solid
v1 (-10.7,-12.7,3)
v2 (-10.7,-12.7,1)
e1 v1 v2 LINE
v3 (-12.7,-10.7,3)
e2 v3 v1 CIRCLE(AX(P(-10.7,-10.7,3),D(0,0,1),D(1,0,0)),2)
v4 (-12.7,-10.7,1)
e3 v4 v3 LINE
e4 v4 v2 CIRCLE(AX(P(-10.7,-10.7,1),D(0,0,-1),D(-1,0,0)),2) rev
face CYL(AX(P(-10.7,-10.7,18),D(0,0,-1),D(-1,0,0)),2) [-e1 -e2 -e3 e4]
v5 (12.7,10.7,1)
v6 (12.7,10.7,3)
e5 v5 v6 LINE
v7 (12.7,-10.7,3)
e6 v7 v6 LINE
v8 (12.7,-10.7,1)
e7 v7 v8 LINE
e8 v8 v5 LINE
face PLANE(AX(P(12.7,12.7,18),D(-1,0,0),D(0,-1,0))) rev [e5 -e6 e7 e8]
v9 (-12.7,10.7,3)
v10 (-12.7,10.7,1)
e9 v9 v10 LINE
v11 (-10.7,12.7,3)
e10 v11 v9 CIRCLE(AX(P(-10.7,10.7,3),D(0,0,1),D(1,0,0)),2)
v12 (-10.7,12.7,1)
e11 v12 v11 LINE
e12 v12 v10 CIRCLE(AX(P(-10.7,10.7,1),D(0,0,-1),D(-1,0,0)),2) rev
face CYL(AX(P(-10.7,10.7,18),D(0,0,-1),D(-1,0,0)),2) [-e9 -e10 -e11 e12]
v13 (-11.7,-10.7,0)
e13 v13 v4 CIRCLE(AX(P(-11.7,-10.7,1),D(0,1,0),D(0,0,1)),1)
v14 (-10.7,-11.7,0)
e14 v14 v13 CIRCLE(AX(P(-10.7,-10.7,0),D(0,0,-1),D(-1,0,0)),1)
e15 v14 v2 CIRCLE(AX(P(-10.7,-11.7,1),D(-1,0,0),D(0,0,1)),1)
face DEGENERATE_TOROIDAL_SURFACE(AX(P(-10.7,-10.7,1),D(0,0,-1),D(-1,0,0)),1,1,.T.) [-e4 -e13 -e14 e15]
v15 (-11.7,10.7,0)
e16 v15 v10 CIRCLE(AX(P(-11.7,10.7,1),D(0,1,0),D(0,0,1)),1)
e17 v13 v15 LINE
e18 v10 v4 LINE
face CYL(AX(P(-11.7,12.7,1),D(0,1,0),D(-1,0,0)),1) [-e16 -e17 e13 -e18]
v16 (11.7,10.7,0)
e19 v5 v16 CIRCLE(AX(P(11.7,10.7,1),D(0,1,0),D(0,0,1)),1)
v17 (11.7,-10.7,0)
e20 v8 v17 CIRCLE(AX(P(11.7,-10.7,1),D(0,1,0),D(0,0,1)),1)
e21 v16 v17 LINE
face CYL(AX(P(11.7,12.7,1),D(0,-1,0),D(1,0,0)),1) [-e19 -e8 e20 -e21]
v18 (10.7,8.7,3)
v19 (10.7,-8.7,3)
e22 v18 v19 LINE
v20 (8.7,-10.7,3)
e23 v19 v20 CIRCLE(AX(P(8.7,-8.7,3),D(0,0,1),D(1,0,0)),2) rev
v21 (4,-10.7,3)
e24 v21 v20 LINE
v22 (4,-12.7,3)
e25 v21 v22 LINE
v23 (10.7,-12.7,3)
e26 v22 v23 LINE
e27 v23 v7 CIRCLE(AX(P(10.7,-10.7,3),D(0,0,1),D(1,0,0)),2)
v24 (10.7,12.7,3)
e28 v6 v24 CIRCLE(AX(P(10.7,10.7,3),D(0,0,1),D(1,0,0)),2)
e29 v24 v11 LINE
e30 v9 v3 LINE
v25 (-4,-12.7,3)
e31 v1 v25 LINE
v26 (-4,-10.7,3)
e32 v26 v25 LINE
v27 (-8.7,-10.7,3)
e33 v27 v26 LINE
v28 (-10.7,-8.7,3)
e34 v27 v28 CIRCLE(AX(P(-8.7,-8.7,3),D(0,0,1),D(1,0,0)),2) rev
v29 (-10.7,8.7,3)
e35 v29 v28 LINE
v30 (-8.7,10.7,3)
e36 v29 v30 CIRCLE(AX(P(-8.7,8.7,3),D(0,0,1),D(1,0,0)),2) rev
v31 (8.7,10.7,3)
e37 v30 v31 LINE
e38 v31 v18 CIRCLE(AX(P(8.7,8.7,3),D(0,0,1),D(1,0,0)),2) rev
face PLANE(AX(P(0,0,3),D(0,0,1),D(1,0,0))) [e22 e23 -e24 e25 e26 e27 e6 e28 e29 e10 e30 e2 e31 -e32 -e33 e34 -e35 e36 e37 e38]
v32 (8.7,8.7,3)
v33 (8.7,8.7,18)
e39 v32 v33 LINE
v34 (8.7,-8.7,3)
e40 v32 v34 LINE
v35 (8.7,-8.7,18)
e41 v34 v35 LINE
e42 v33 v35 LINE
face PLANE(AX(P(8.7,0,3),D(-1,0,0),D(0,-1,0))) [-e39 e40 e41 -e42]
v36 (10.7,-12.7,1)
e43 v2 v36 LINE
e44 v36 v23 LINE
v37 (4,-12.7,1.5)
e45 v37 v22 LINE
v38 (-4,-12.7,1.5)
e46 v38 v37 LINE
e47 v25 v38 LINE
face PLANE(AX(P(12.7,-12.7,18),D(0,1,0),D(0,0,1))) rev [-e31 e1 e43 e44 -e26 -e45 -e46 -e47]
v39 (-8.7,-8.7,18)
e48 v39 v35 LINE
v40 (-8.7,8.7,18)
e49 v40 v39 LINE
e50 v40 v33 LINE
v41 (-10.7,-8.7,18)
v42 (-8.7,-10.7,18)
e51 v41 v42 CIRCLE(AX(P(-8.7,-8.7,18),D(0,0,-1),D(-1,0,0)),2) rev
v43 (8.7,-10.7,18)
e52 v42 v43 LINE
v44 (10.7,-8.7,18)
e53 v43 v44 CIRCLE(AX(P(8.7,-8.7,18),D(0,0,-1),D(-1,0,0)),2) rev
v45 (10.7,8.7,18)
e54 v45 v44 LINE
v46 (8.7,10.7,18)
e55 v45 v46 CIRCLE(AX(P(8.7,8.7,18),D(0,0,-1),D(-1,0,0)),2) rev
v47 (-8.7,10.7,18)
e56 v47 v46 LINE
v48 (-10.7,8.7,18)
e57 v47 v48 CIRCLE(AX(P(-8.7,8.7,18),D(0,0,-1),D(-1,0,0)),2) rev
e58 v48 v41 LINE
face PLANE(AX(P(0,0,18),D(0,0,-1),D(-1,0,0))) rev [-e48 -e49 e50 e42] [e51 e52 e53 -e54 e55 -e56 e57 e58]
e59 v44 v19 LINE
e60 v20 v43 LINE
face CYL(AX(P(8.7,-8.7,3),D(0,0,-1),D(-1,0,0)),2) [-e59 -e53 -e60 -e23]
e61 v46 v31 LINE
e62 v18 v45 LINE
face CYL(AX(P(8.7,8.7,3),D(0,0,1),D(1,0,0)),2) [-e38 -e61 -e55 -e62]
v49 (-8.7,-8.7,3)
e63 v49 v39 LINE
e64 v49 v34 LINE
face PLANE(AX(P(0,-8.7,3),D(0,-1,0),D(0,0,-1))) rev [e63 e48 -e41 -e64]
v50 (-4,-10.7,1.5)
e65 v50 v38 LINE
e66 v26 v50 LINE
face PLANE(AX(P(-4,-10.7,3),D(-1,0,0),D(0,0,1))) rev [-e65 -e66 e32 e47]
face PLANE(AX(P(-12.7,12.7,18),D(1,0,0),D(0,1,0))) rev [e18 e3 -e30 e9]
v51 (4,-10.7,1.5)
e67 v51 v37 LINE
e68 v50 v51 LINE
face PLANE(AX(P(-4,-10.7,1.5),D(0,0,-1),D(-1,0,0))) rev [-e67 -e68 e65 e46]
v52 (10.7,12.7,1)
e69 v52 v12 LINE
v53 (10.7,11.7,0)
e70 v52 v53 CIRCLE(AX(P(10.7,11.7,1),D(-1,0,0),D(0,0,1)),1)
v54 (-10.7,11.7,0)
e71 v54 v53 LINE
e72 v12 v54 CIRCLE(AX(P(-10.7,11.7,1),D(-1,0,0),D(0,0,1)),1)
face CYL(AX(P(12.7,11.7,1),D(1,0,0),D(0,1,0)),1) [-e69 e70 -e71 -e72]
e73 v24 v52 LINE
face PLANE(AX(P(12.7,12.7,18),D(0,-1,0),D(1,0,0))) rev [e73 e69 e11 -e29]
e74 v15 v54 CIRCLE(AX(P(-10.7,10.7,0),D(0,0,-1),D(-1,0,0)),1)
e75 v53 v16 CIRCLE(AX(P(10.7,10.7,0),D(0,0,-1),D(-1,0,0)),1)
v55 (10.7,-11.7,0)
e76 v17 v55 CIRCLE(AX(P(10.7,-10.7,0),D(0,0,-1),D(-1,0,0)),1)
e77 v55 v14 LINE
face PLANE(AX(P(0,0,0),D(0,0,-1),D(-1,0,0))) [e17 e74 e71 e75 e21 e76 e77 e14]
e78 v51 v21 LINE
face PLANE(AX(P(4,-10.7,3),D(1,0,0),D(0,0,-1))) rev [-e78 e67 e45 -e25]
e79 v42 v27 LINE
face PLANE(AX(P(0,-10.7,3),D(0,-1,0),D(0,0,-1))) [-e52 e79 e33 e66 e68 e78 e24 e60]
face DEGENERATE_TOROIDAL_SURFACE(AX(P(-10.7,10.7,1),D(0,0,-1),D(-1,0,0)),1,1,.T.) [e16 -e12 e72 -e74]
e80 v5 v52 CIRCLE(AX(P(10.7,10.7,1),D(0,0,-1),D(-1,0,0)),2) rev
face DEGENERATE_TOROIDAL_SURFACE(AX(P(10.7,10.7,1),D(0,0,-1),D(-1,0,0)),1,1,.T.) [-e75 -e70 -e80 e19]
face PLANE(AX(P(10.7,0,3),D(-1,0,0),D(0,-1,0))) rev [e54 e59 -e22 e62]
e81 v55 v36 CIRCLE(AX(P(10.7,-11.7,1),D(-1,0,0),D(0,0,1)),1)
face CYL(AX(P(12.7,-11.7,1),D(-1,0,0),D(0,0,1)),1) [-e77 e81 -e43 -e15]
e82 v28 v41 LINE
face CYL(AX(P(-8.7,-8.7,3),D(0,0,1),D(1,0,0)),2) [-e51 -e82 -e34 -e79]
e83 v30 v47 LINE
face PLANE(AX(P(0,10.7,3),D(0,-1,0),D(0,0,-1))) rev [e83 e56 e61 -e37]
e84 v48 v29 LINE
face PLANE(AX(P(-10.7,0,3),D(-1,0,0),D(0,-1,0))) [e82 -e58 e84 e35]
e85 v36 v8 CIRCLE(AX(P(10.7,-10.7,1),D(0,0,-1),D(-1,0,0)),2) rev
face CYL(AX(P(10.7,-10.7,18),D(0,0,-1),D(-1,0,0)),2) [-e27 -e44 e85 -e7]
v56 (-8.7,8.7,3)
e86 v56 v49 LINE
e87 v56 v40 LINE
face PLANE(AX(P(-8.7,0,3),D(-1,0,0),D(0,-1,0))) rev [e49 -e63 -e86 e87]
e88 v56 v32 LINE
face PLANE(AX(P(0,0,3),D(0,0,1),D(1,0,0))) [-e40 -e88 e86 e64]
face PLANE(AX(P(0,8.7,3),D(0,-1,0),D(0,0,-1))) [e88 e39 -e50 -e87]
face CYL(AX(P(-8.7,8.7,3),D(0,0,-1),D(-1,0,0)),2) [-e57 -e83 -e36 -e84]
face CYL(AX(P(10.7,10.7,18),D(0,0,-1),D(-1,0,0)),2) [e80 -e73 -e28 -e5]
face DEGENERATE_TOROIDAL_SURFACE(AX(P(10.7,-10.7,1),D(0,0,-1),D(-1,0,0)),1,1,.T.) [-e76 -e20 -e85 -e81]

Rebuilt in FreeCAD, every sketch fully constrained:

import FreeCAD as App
import Part
import Sketcher

V = App.Vector


def edges_at(feature, points):
    """Names of the edges that pass closest to the given points."""
    edges = feature.Shape.Edges
    near = lambda p: min(range(len(edges)), key=lambda i: edges[i].distToShape(Part.Vertex(*p))[0])
    return sorted({f"Edge{near(p) + 1}" for p in points})


def add_polygon(sketch, points):
    """Adds a closed chain of lines whose ends are joined by coincident constraints."""
    first, n = sketch.GeometryCount, len(points)
    for a, b in zip(points, points[1:] + points[:1]):
        sketch.addGeometry(Part.LineSegment(App.Vector(*a, 0), App.Vector(*b, 0)), False)
    for i in range(n):
        sketch.addConstraint(Sketcher.Constraint("Coincident", first + i, 2, first + (i + 1) % n, 1))

doc = App.newDocument("Part")
body = doc.addObject("PartDesign::Body", "Body")

sketch1 = body.newObject("Sketcher::SketchObject", "Sketch")
sketch1.AttachmentSupport = (doc.getObject("XY_Plane"), [""])
sketch1.MapMode = "FlatFace"
add_polygon(sketch1, [(-13, 13), (-13, -13), (13, -13), (13, 13)])
sketch1.addConstraint([
    Sketcher.Constraint("Vertical", 0),
    Sketcher.Constraint("Horizontal", 1),
    Sketcher.Constraint("Vertical", 2),
    Sketcher.Constraint("Horizontal", 3),
    Sketcher.Constraint("Symmetric", 0, 2, 2, 2, -1, 1),
    Sketcher.Constraint("Equal", 3, 0),
    Sketcher.Constraint("DistanceX", 1, 1, 1, 2, 25.4),
])
pad1 = body.newObject("PartDesign::Pad", "Pad")
pad1.Profile = sketch1
pad1.Length = 18

sketch2 = body.newObject("Sketcher::SketchObject", "Sketch001")
sketch2.AttachmentSupport = (doc.getObject("XY_Plane"), [""])
sketch2.MapMode = "FlatFace"
sketch2.AttachmentOffset = App.Placement(V(0, 0, 18), App.Rotation())
add_polygon(sketch2, [(-13, 13), (-13, -13), (13, -13), (13, 13)])
add_polygon(sketch2, [(11, -11), (-11, -11), (-11, 11), (11, 11)])
add_polygon(sketch2, [(-9, 9), (-9, -9), (9, -9), (9, 9)])
sketch2.addConstraint([
    Sketcher.Constraint("Vertical", 0),
    Sketcher.Constraint("Horizontal", 1),
    Sketcher.Constraint("Vertical", 2),
    Sketcher.Constraint("Horizontal", 3),
    Sketcher.Constraint("Horizontal", 4),
    Sketcher.Constraint("Vertical", 5),
    Sketcher.Constraint("Horizontal", 6),
    Sketcher.Constraint("Vertical", 7),
    Sketcher.Constraint("Vertical", 8),
    Sketcher.Constraint("Horizontal", 9),
    Sketcher.Constraint("Vertical", 10),
    Sketcher.Constraint("Horizontal", 11),
    Sketcher.Constraint("Symmetric", 0, 2, 2, 2, -1, 1),
    Sketcher.Constraint("Symmetric", 4, 2, 6, 2, -1, 1),
    Sketcher.Constraint("Symmetric", 8, 2, 10, 2, -1, 1),
    Sketcher.Constraint("Equal", 3, 0),
    Sketcher.Constraint("Equal", 6, 5),
    Sketcher.Constraint("Equal", 11, 8),
    Sketcher.Constraint("DistanceX", 1, 1, 1, 2, 25.4),
    Sketcher.Constraint("DistanceX", 4, 2, 4, 1, 21.4),
    Sketcher.Constraint("DistanceX", 9, 1, 9, 2, 17.4),
])
pocket1 = body.newObject("PartDesign::Pocket", "Pocket")
pocket1.Profile = sketch2
pocket1.Length = 15
doc.recompute()

fillet = body.newObject("PartDesign::Fillet", "Fillet")
fillet.Base = (pocket1, edges_at(pocket1, [
    (-12.7, 12.7, 1.5),
    (12.7, 12.7, 1.5),
    (12.7, -12.7, 1.5),
    (-12.7, -12.7, 1.5),
    (10.7, 10.7, 10.5),
    (-10.7, 10.7, 10.5),
    (-10.7, -10.7, 10.5),
    (10.7, -10.7, 10.5),
]))
fillet.Radius = 2
doc.recompute()

fillet2 = body.newObject("PartDesign::Fillet", "Fillet001")
fillet2.Base = (fillet, edges_at(fillet, [
    (0, 12.7, 0),
    (-12.7, 0, 0),
    (12.7, 0, 0),
    (0, -12.7, 0),
    (12.114, -12.114, 0),
    (-12.114, -12.114, 0),
    (-12.114, 12.114, 0),
    (12.114, 12.114, 0),
]))
fillet2.Radius = 1

sketch3 = body.newObject("Sketcher::SketchObject", "Sketch002")
sketch3.AttachmentSupport = (doc.getObject("XZ_Plane"), [""])
sketch3.MapMode = "FlatFace"
sketch3.AttachmentOffset = App.Placement(V(0, 0, 12.7), App.Rotation())
add_polygon(sketch3, [(-4, 3), (-4, 1.5), (4, 1.5), (4, 3)])
sketch3.addConstraint([
    Sketcher.Constraint("Vertical", 0),
    Sketcher.Constraint("Horizontal", 1),
    Sketcher.Constraint("Vertical", 2),
    Sketcher.Constraint("Horizontal", 3),
    Sketcher.Constraint("DistanceX", 1, 1, 1, 2, 8.0),
    Sketcher.Constraint("DistanceY", 0, 2, 0, 1, 1.5),
    Sketcher.Constraint("DistanceX", 0, 2, -1, 1, 4.0),
    Sketcher.Constraint("DistanceY", -1, 1, 2, 2, 3.0),
])
pocket2 = body.newObject("PartDesign::Pocket", "Pocket001")
pocket2.Profile = sketch3
pocket2.Length = 2

doc.recompute()
